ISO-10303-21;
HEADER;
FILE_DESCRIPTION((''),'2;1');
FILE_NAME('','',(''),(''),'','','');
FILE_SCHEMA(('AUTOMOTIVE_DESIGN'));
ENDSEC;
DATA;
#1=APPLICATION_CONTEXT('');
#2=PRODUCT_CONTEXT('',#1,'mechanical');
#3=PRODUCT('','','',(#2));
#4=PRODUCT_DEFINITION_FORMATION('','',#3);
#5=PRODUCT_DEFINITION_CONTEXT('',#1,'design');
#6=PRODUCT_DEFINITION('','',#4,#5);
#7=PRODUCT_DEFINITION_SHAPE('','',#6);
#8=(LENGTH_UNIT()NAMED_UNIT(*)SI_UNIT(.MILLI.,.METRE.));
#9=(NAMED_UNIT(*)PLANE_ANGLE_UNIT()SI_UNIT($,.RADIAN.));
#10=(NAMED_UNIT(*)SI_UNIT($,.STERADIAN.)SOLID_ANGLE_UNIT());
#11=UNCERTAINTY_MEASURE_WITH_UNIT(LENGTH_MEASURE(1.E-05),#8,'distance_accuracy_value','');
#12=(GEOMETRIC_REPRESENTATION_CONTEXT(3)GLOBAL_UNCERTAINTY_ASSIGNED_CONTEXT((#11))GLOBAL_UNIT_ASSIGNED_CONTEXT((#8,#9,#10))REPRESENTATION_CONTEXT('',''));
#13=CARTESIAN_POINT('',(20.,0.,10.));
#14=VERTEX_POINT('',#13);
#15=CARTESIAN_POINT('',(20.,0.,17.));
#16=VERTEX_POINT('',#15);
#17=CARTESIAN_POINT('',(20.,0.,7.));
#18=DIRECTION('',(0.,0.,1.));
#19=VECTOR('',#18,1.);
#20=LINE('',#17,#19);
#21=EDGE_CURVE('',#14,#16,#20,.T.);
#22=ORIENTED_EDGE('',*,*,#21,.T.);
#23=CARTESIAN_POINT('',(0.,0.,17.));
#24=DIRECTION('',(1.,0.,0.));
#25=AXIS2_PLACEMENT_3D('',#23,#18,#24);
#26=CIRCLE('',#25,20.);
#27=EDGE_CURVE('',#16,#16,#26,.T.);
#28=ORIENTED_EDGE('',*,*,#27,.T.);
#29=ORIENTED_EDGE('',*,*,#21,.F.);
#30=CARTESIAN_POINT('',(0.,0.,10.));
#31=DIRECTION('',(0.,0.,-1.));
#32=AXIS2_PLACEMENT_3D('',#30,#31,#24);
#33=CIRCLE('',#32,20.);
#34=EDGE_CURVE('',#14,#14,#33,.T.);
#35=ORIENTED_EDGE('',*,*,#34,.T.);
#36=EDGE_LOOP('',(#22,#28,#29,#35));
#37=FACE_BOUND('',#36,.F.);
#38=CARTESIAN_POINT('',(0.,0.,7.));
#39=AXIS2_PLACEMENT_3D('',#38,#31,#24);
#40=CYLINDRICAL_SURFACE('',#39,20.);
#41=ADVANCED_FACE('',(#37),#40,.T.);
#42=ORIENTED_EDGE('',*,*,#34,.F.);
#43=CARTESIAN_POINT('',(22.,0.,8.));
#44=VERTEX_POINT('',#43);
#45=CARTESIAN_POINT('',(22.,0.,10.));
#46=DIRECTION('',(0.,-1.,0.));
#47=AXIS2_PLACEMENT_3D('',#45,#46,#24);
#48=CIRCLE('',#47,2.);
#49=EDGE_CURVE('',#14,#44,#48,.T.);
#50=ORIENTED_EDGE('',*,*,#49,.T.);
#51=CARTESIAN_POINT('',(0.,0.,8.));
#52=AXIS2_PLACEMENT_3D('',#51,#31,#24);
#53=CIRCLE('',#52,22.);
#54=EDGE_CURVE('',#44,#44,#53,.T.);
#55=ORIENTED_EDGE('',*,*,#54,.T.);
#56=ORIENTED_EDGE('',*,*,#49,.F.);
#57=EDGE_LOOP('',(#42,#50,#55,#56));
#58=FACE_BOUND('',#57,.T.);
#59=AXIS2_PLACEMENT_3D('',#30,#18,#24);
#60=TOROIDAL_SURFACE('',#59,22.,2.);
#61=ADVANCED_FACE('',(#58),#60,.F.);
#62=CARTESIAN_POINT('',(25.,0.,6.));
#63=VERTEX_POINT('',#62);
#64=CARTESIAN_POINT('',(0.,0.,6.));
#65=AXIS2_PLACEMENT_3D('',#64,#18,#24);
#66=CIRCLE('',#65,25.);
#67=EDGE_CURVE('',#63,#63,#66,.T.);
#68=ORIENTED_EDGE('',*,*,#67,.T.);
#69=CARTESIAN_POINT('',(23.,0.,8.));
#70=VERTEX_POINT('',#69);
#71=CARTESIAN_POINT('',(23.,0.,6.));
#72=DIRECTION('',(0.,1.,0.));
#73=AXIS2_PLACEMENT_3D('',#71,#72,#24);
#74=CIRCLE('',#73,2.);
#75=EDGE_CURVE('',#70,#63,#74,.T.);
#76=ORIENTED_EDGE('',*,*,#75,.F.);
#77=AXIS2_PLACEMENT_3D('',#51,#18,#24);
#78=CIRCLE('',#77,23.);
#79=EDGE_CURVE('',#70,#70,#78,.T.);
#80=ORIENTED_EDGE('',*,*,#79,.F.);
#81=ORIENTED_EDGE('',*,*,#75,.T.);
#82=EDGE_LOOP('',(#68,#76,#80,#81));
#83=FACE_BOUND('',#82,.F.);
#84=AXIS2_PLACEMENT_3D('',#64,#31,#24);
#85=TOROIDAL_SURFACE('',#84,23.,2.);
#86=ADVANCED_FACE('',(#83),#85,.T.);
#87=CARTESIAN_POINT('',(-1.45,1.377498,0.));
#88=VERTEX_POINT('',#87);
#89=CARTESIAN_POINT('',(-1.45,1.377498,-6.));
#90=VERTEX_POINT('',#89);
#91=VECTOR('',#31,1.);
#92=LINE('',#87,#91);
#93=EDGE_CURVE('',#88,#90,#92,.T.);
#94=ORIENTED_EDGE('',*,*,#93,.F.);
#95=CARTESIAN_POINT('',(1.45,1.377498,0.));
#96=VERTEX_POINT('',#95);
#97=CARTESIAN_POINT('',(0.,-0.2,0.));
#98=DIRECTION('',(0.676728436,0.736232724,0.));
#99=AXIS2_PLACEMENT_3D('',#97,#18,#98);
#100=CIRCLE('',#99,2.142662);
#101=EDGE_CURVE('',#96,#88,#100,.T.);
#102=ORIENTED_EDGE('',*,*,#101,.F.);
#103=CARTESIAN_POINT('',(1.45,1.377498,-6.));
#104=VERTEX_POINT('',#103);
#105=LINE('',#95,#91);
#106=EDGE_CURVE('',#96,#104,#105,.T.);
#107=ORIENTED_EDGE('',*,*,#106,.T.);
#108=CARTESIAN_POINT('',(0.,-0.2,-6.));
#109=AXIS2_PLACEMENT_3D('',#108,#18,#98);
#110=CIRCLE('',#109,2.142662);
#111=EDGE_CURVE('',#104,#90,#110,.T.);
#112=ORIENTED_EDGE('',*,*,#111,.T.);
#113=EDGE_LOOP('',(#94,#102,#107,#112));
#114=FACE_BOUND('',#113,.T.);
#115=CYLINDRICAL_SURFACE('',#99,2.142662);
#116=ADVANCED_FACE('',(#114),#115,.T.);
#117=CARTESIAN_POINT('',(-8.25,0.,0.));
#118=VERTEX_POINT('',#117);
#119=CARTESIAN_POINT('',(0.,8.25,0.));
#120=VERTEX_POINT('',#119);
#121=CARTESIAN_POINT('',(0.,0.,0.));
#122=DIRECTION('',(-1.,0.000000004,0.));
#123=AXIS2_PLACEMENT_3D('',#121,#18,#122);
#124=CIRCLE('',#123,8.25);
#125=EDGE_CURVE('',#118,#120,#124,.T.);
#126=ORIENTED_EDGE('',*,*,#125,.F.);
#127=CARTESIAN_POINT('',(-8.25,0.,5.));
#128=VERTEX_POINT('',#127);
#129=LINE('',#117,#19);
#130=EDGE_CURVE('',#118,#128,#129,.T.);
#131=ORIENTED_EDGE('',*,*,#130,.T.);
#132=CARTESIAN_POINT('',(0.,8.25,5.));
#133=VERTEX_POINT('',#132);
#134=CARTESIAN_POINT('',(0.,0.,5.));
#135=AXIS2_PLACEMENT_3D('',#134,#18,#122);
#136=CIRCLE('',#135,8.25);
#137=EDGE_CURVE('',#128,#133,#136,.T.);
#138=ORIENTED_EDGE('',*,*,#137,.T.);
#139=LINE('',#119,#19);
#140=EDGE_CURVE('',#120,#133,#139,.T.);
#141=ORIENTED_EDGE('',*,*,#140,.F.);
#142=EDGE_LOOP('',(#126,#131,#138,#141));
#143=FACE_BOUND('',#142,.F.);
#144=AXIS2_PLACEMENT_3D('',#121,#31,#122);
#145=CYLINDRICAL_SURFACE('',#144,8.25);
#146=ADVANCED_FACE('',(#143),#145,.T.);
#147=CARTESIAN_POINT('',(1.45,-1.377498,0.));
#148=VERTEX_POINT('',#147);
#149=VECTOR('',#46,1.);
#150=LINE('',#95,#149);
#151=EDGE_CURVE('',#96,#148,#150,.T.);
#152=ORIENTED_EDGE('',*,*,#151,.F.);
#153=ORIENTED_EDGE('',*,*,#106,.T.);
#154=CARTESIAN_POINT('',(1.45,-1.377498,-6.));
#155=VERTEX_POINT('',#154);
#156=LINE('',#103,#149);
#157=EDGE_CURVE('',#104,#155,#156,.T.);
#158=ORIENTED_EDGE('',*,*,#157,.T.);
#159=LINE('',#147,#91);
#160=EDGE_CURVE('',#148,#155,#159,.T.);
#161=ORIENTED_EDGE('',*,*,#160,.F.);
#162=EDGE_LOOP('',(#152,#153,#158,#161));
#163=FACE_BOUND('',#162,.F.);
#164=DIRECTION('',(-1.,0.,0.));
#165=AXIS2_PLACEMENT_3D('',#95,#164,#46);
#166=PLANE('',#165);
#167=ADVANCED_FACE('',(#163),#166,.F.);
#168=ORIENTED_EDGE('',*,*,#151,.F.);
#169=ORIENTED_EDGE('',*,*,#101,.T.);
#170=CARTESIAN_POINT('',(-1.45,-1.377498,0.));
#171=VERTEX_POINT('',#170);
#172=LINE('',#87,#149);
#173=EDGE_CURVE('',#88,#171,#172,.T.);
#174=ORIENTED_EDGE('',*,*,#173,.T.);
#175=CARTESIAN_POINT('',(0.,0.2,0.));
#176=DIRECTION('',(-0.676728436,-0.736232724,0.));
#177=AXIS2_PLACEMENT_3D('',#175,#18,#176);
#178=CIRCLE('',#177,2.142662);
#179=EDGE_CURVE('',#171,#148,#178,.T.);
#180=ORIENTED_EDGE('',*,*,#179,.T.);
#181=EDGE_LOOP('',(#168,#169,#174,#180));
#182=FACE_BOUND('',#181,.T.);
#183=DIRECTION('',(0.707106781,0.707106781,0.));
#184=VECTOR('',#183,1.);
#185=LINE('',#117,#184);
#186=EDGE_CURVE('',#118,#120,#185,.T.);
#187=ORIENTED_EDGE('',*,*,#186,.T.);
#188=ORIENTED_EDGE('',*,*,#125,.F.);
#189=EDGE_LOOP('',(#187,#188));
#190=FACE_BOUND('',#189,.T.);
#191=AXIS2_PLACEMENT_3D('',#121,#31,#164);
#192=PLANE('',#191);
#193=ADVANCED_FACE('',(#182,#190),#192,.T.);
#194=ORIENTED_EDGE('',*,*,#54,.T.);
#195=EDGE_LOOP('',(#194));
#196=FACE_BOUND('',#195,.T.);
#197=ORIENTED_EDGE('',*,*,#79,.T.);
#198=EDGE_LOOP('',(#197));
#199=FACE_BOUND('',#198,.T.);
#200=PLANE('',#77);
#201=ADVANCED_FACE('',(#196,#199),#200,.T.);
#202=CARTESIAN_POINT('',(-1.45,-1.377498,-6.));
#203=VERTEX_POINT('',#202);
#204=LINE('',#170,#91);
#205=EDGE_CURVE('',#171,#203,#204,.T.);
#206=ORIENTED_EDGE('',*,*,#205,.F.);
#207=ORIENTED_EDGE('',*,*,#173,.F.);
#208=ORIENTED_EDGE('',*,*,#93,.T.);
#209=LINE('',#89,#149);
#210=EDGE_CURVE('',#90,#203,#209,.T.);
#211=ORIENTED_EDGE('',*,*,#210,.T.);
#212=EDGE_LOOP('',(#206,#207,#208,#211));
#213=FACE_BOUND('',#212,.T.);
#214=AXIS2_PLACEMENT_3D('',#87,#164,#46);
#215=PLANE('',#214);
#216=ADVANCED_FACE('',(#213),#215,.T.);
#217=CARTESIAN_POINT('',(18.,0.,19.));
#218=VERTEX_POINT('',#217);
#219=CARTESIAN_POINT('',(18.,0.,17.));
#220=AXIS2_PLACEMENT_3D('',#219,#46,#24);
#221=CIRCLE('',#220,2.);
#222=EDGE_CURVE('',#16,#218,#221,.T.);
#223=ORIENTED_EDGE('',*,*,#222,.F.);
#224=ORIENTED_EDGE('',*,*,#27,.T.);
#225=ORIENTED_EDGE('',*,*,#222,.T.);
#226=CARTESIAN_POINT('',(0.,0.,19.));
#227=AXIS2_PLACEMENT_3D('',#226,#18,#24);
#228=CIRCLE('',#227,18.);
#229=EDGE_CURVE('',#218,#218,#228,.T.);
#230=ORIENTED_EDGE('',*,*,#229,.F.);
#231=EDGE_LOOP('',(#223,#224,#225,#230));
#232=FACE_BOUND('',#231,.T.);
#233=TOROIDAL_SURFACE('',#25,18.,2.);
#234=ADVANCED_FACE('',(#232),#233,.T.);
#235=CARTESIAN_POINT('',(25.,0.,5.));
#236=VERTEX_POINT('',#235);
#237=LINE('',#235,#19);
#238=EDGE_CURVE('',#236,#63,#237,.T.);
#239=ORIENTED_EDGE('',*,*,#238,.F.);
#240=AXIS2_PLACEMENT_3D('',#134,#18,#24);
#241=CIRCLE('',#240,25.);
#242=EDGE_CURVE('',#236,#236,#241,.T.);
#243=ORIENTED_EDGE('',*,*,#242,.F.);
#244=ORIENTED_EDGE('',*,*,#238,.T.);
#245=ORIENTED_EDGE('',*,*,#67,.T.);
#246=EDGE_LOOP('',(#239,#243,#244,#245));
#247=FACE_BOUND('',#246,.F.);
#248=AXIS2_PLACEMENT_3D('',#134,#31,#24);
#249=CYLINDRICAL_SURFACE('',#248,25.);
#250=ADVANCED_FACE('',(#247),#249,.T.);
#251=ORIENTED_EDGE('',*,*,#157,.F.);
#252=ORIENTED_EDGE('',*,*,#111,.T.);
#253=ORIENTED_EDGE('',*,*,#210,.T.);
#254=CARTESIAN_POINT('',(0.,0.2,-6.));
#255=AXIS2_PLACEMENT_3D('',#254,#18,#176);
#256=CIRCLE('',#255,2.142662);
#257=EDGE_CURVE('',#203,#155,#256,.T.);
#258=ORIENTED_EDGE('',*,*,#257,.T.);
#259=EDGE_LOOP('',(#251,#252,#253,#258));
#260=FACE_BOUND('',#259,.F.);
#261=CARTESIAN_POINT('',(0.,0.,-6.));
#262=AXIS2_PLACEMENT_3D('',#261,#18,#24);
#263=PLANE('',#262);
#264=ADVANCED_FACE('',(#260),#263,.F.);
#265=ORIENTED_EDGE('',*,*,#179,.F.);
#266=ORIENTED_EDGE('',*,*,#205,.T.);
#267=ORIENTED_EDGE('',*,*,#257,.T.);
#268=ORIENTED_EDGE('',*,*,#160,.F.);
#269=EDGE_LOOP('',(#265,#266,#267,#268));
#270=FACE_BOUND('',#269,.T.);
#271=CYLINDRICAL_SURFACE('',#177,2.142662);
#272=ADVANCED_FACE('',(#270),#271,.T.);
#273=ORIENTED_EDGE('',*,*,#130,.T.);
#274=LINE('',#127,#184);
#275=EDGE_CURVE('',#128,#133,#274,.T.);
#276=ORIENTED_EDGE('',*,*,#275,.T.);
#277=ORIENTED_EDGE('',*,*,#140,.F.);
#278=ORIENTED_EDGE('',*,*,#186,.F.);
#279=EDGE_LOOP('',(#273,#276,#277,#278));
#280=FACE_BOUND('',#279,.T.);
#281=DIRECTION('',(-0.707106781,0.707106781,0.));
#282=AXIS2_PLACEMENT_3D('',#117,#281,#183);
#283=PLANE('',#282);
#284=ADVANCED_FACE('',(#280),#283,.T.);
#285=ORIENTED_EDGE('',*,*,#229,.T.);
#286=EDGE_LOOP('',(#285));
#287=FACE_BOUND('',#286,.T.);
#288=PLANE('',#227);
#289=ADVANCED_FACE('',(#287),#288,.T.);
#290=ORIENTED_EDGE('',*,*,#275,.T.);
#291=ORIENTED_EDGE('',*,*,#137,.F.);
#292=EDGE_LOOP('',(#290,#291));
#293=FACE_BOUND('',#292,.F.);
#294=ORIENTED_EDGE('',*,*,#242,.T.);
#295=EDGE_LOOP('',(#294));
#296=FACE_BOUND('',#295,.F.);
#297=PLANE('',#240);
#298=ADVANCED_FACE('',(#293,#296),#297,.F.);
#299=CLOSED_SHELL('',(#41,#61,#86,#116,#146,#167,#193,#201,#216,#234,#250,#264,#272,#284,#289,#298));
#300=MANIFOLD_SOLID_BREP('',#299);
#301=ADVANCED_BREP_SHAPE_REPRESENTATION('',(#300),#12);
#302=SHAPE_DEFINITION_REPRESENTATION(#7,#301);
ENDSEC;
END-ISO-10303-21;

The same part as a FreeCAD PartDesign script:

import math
import FreeCAD as App
import Part
import Sketcher
from FreeCAD import Vector
Q = App.Units.Quantity


def edges_at(feature, points):
    """Names of the edges that pass closest to the given points."""
    edges = feature.Shape.Edges
    near = lambda p: min(range(len(edges)), key=lambda i: edges[i].distToShape(Part.Vertex(*p))[0])
    return sorted({f"Edge{near(p) + 1}" for p in points})

doc = App.newDocument("Part")
body = doc.addObject("PartDesign::Body", "Body")

# Sketch on XY plane
sketch1 = body.newObject("Sketcher::SketchObject", "Sketch")
sketch1.AttachmentSupport = (doc.getObject("XY_Plane"), [""])
sketch1.MapMode = "FlatFace"
sketch1.addGeometry(Part.LineSegment(Vector(-1.45, 1.377498, 0), Vector(-1.45, -1.377498, 0)), False)
sketch1.addGeometry(Part.ArcOfCircle(Part.Circle(Vector(0, 0.2, 0), Vector(0, 0, 1), 2.142662), math.radians(-132.588517), math.radians(-47.411483)), False)
sketch1.addGeometry(Part.LineSegment(Vector(1.45, -1.377498, 0), Vector(1.45, 1.377498, 0)), False)
sketch1.addGeometry(Part.ArcOfCircle(Part.Circle(Vector(0, -0.2, 0), Vector(0, 0, 1), 2.142662), math.radians(47.411483), math.radians(132.588517)), False)
sketch1.addConstraint(Sketcher.Constraint("Coincident", 0, 2, 1, 1))
sketch1.addConstraint(Sketcher.Constraint("Coincident", 1, 2, 2, 1))
sketch1.addConstraint(Sketcher.Constraint("Coincident", 2, 2, 3, 1))
sketch1.addConstraint(Sketcher.Constraint("Coincident", 3, 2, 0, 1))
sketch1.addConstraint(Sketcher.Constraint("Vertical", 0))
sketch1.addConstraint(Sketcher.Constraint("Vertical", 2))
sketch1.addConstraint(Sketcher.Constraint("Equal", 1, 3))
sketch1.addConstraint(Sketcher.Constraint("Symmetric", 1, 3, 3, 3, -1, 1))
sketch1.addConstraint(Sketcher.Constraint("Symmetric", 0, 2, 1, 2, -2))
sketch1.addConstraint(Sketcher.Constraint("DistanceY", -1, 1, 1, 3, Q("0.2 mm")))
sketch1.addConstraint(Sketcher.Constraint("DistanceX", 0, 2, 1, 2, Q("2.9 mm")))
sketch1.addConstraint(Sketcher.Constraint("Radius", 1, Q("2.142662 mm")))
pad1 = body.newObject("PartDesign::Pad", "Pad")
pad1.Profile = sketch1
pad1.Length = 6
pad1.Reversed = True

# Sketch on XY plane
sketch2 = body.newObject("Sketcher::SketchObject", "Sketch001")
sketch2.AttachmentSupport = (doc.getObject("XY_Plane"), [""])
sketch2.MapMode = "FlatFace"
sketch2.addGeometry(Part.LineSegment(Vector(0, 8.25, 0), Vector(-8.25, 0, 0)), False)
sketch2.addGeometry(Part.ArcOfCircle(Part.Circle(Vector(0, 0, 0), Vector(0, 0, 1), 8.25), math.radians(180), math.radians(450)), False)
sketch2.addConstraint(Sketcher.Constraint("Coincident", 0, 1, 1, 2))
sketch2.addConstraint(Sketcher.Constraint("Coincident", 1, 1, 0, 2))
sketch2.addConstraint(Sketcher.Constraint("Coincident", 1, 3, -1, 1))
sketch2.addConstraint(Sketcher.Constraint("PointOnObject", 0, 1, -2))
sketch2.addConstraint(Sketcher.Constraint("PointOnObject", 1, 1, -1))
sketch2.addConstraint(Sketcher.Constraint("Radius", 1, Q("8.25 mm")))
pad2 = body.newObject("PartDesign::Pad", "Pad001")
pad2.Profile = sketch2
pad2.Length = 5

# Sketch on XY plane
sketch3 = body.newObject("Sketcher::SketchObject", "Sketch002")
sketch3.AttachmentSupport = (doc.getObject("XY_Plane"), [""])
sketch3.MapMode = "FlatFace"
sketch3.AttachmentOffset = App.Placement(Vector(0, 0, 5), App.Rotation())
sketch3.addGeometry(Part.Circle(Vector(0, 0, 0), Vector(0, 0, 1), 25), False)
sketch3.addConstraint(Sketcher.Constraint("Coincident", 0, 3, -1, 1))
sketch3.addConstraint(Sketcher.Constraint("Diameter", 0, Q("50 mm")))
pad3 = body.newObject("PartDesign::Pad", "Pad002")
pad3.Profile = sketch3
pad3.Length = 3

# Sketch on XY plane
sketch4 = body.newObject("Sketcher::SketchObject", "Sketch003")
sketch4.AttachmentSupport = (doc.getObject("XY_Plane"), [""])
sketch4.MapMode = "FlatFace"
sketch4.AttachmentOffset = App.Placement(Vector(0, 0, 7), App.Rotation())
sketch4.addGeometry(Part.Circle(Vector(0, 0, 0), Vector(0, 0, 1), 20), False)
sketch4.addConstraint(Sketcher.Constraint("Coincident", 0, 3, -1, 1))
sketch4.addConstraint(Sketcher.Constraint("Diameter", 0, Q("40 mm")))
pad4 = body.newObject("PartDesign::Pad", "Pad003")
pad4.Profile = sketch4
pad4.Length = 12
doc.recompute()

fillet = body.newObject("PartDesign::Fillet", "Fillet")
fillet.Base = (pad4, edges_at(pad4, [(-20, 0, 19), (-20, 0, 8), (-25, 0, 8)]))
fillet.Radius = 2

doc.recompute()
